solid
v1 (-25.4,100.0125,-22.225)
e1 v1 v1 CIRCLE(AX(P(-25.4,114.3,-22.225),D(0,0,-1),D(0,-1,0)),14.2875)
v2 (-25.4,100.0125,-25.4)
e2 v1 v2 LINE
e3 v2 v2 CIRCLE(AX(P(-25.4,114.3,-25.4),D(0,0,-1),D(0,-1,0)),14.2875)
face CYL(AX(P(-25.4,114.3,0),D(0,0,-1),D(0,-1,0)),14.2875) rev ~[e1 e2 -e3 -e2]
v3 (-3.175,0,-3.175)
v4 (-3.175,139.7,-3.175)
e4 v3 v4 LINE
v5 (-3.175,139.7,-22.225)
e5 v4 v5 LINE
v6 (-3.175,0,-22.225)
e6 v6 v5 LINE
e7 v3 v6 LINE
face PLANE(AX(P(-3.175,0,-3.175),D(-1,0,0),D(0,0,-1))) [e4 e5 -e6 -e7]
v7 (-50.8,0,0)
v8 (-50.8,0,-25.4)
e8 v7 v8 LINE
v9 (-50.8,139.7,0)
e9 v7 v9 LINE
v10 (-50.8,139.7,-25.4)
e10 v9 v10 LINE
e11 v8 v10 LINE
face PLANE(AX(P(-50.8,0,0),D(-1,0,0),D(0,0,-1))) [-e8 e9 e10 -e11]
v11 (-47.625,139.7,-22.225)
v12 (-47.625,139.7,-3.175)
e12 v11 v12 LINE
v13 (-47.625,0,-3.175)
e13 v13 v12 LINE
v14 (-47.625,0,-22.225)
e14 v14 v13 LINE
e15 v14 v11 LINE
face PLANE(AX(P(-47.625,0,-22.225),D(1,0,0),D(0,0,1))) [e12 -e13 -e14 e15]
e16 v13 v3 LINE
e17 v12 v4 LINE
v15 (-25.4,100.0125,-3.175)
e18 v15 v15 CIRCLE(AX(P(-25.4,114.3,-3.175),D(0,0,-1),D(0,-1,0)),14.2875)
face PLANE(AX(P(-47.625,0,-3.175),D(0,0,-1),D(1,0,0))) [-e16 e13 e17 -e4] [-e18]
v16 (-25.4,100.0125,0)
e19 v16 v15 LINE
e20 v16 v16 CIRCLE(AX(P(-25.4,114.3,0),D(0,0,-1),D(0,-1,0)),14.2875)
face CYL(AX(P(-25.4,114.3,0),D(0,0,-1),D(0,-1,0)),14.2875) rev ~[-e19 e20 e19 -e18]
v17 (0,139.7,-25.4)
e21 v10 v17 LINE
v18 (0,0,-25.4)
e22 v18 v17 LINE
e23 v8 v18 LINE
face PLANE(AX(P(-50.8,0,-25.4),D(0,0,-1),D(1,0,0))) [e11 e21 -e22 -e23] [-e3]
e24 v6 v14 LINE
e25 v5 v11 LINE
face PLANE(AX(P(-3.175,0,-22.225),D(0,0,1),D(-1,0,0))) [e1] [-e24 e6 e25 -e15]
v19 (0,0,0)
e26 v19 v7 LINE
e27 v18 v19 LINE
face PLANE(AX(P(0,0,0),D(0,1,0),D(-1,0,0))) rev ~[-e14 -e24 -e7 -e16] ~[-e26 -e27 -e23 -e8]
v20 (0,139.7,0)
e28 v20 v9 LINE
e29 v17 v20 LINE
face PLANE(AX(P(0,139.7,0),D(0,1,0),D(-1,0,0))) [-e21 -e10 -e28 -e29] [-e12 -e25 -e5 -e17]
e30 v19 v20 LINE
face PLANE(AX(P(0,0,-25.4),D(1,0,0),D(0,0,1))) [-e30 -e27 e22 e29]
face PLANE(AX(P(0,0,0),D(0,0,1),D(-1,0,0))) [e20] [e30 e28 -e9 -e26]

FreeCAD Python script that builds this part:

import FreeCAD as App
import Part
import Sketcher

V = App.Vector
Q = App.Units.Quantity


def add_polygon(sketch, points):
    """Adds a closed chain of lines whose ends are joined by coincident constraints."""
    first, n = sketch.GeometryCount, len(points)
    for a, b in zip(points, points[1:] + points[:1]):
        sketch.addGeometry(Part.LineSegment(App.Vector(*a, 0), App.Vector(*b, 0)), False)
    for i in range(n):
        sketch.addConstraint(Sketcher.Constraint("Coincident", first + i, 2, first + (i + 1) % n, 1))

doc = App.newDocument("Part")
params = doc.addObject("Spreadsheet::Sheet", "Params")
for row, (alias, value) in enumerate([
    ("sketch1_width", "2 in"),
    ("sketch1_height", "1 in"),
    ("pad1_length", "5.5 in"),
    ("sketch2_diameter", "1.125 in"),
    ("hole_diameter", "1.125 in"),
], start=1):
    params.set(f"A{row}", alias)
    params.set(f"B{row}", "=" + value)
    params.setAlias(f"B{row}", alias)

body = doc.addObject("PartDesign::Body", "Body")

sketch1 = doc.addObject("Sketcher::SketchObject", "Sketch")
body.addObject(sketch1)
sketch1.AttachmentSupport = (doc.XZ_Plane, [""])
sketch1.MapMode = "FlatFace"
add_polygon(sketch1, [(-51, 0), (0, 0), (0, -25), (-51, -25)])
add_polygon(sketch1, [(-3, -3), (-48, -3), (-48, -22), (-3, -22)])
sketch1.addConstraint([
    Sketcher.Constraint("Horizontal", 0),
    Sketcher.Constraint("Vertical", 1),
    Sketcher.Constraint("Horizontal", 2),
    Sketcher.Constraint("Vertical", 3),
    Sketcher.Constraint("Horizontal", 4),
    Sketcher.Constraint("Vertical", 5),
    Sketcher.Constraint("Horizontal", 6),
    Sketcher.Constraint("Vertical", 7),
    Sketcher.Constraint("Coincident", 0, 2, -1, 1),
    Sketcher.Constraint("DistanceX", 0, 1, 0, 2, Q("2 in")),
    Sketcher.Constraint("DistanceY", 1, 2, 1, 1, Q("1 in")),
    Sketcher.Constraint("DistanceY", 4, 2, -1, 1, Q("0.125 in")),
    Sketcher.Constraint("DistanceX", 6, 2, -1, 1, Q("0.125 in")),
    Sketcher.Constraint("DistanceX", 3, 2, 4, 2, Q("0.125 in")),
    Sketcher.Constraint("DistanceY", 2, 2, 5, 2, Q("0.125 in")),
])
sketch1.setExpression("Constraints[17]", "Params.sketch1_width")
sketch1.setExpression("Constraints[18]", "Params.sketch1_height")
pad1 = doc.addObject("PartDesign::Pad", "Pad")
body.addObject(pad1)
pad1.Profile = sketch1
pad1.setExpression("Length", "Params.pad1_length")
pad1.Reversed = True

sketch2 = doc.addObject("Sketcher::SketchObject", "Sketch001")
body.addObject(sketch2)
sketch2.AttachmentSupport = (doc.XY_Plane, [""])
sketch2.MapMode = "FlatFace"
sketch2.addGeometry(Part.Circle(V(-25, 114, 0), V(0, 0, 1), 14), False)
sketch2.addConstraint([
    Sketcher.Constraint("Diameter", 0, Q("1.125 in")),
    Sketcher.Constraint("DistanceX", 0, 3, -1, 1, Q("1 in")),
    Sketcher.Constraint("DistanceY", -1, 1, 0, 3, Q("4.5 in")),
])
sketch2.setExpression("Constraints[0]", "Params.sketch2_diameter")
doc.recompute()
hole = doc.addObject("PartDesign::Hole", "Hole")
body.addObject(hole)
hole.Profile = sketch2
hole.ThreadType = "None"
hole.setExpression("Diameter", "Params.hole_diameter")
hole.DepthType = "ThroughAll"

doc.recompute()
